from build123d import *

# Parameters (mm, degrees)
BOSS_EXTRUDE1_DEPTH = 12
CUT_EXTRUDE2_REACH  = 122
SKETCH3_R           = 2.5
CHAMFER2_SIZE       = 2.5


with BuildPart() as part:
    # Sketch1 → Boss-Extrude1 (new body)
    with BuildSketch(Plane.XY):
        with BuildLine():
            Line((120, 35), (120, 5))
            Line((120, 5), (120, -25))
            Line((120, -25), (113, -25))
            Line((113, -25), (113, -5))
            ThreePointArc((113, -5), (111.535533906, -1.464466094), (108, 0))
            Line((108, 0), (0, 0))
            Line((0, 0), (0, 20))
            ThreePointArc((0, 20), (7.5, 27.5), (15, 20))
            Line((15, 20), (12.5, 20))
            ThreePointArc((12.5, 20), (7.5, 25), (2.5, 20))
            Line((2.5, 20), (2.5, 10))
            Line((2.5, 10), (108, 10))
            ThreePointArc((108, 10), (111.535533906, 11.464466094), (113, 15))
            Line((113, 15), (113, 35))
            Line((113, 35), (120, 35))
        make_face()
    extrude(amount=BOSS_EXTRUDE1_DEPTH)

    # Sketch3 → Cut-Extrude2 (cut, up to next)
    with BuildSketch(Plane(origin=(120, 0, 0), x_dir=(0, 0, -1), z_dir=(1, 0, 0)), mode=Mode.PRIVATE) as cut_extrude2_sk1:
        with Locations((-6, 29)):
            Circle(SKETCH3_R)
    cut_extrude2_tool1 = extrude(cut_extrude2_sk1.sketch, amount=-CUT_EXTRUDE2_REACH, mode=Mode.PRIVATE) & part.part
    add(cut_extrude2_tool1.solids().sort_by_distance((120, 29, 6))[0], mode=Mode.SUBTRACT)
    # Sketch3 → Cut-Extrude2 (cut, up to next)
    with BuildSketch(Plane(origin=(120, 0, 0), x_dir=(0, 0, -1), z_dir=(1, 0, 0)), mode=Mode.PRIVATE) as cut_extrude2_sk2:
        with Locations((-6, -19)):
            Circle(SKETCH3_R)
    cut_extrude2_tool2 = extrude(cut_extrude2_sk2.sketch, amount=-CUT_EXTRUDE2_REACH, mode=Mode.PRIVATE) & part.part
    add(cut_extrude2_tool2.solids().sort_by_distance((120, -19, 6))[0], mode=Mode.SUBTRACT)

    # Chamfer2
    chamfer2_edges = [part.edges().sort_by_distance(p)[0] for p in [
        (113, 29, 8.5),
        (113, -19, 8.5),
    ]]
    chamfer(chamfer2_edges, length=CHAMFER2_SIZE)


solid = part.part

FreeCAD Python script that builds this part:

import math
import FreeCAD as App
import Part
import Sketcher

V = App.Vector


def edges_at(feature, points):
    """Names of the edges that pass closest to the given points."""
    edges = feature.Shape.Edges
    near = lambda p: min(range(len(edges)), key=lambda i: edges[i].distToShape(Part.Vertex(*p))[0])
    return sorted({f"Edge{near(p) + 1}" for p in points})

doc = App.newDocument("Part")
body = doc.addObject("PartDesign::Body", "Body")

# Sketch on XY plane
sketch1 = body.newObject("Sketcher::SketchObject", "Sketch")
sketch1.AttachmentSupport = (doc.getObject("XY_Plane"), [""])
sketch1.MapMode = "FlatFace"
sketch1.addGeometry(Part.LineSegment(V(120, -25, 0), V(120, 35, 0)), False)
sketch1.addGeometry(Part.LineSegment(V(120, 35, 0), V(113, 35, 0)), False)
sketch1.addGeometry(Part.LineSegment(V(113, 35, 0), V(113, 15, 0)), False)
sketch1.addGeometry(Part.ArcOfCircle(Part.Circle(V(108, 15, 0), V(0, 0, 1), 5), math.radians(-90), math.radians(0)), False)
sketch1.addGeometry(Part.LineSegment(V(108, 10, 0), V(2.5, 10, 0)), False)
sketch1.addGeometry(Part.LineSegment(V(2.5, 10, 0), V(2.5, 20, 0)), False)
sketch1.addGeometry(Part.ArcOfCircle(Part.Circle(V(7.5, 20, 0), V(0, 0, 1), 5), math.radians(0), math.radians(180)), False)
sketch1.addGeometry(Part.LineSegment(V(12.5, 20, 0), V(15, 20, 0)), False)
sketch1.addGeometry(Part.ArcOfCircle(Part.Circle(V(7.5, 20, 0), V(0, 0, 1), 7.5), math.radians(0), math.radians(180)), False)
sketch1.addGeometry(Part.LineSegment(V(0, 20, 0), V(0, 0, 0)), False)
sketch1.addGeometry(Part.LineSegment(V(0, 0, 0), V(108, 0, 0)), False)
sketch1.addGeometry(Part.ArcOfCircle(Part.Circle(V(108, -5, 0), V(0, 0, 1), 5), math.radians(0), math.radians(90)), False)
sketch1.addGeometry(Part.LineSegment(V(113, -5, 0), V(113, -25, 0)), False)
sketch1.addGeometry(Part.LineSegment(V(113, -25, 0), V(120, -25, 0)), False)
sketch1.addConstraint(Sketcher.Constraint("Coincident", 0, 2, 1, 1))
sketch1.addConstraint(Sketcher.Constraint("Coincident", 1, 2, 2, 1))
sketch1.addConstraint(Sketcher.Constraint("Tangent", 2, 2, 3, 2))
sketch1.addConstraint(Sketcher.Constraint("Tangent", 3, 1, 4, 1))
sketch1.addConstraint(Sketcher.Constraint("Coincident", 4, 2, 5, 1))
sketch1.addConstraint(Sketcher.Constraint("Tangent", 5, 2, 6, 2))
sketch1.addConstraint(Sketcher.Constraint("Coincident", 6, 1, 7, 1))
sketch1.addConstraint(Sketcher.Constraint("Coincident", 7, 2, 8, 1))
sketch1.addConstraint(Sketcher.Constraint("Tangent", 8, 2, 9, 1))
sketch1.addConstraint(Sketcher.Constraint("Coincident", 9, 2, 10, 1))
sketch1.addConstraint(Sketcher.Constraint("Tangent", 10, 2, 11, 2))
sketch1.addConstraint(Sketcher.Constraint("Tangent", 11, 1, 12, 1))
sketch1.addConstraint(Sketcher.Constraint("Coincident", 12, 2, 13, 1))
sketch1.addConstraint(Sketcher.Constraint("Coincident", 13, 2, 0, 1))
sketch1.addConstraint(Sketcher.Constraint("Vertical", 0))
sketch1.addConstraint(Sketcher.Constraint("Horizontal", 1))
sketch1.addConstraint(Sketcher.Constraint("Vertical", 2))
sketch1.addConstraint(Sketcher.Constraint("Horizontal", 4))
sketch1.addConstraint(Sketcher.Constraint("Vertical", 5))
sketch1.addConstraint(Sketcher.Constraint("Horizontal", 7))
sketch1.addConstraint(Sketcher.Constraint("Vertical", 9))
sketch1.addConstraint(Sketcher.Constraint("Horizontal", 10))
sketch1.addConstraint(Sketcher.Constraint("Vertical", 12))
sketch1.addConstraint(Sketcher.Constraint("Horizontal", 13))
sketch1.addConstraint(Sketcher.Constraint("Coincident", 9, 2, -1, 1))
sketch1.addConstraint(Sketcher.Constraint("Coincident", 8, 3, 6, 3))
sketch1.addConstraint(Sketcher.Constraint("Equal", 3, 6))
sketch1.addConstraint(Sketcher.Constraint("Equal", 6, 11))
sketch1.addConstraint(Sketcher.Constraint("Horizontal", 5, 2, 6, 1))
sketch1.addConstraint(Sketcher.Constraint("Vertical", 3, 3, 11, 3))
sketch1.addConstraint(Sketcher.Constraint("Equal", 2, 9))
sketch1.addConstraint(Sketcher.Constraint("Equal", 9, 12))
sketch1.addConstraint(Sketcher.Constraint("Radius", 3, 5.0))
sketch1.addConstraint(Sketcher.Constraint("Radius", 8, 7.5))
sketch1.addConstraint(Sketcher.Constraint("DistanceX", 1, 2, 1, 1, 7.0))
sketch1.addConstraint(Sketcher.Constraint("DistanceX", 10, 1, 10, 2, 108.0))
sketch1.addConstraint(Sketcher.Constraint("DistanceY", 0, 1, 0, 2, 60.0))
sketch1.addConstraint(Sketcher.Constraint("DistanceY", 2, 2, 2, 1, 20.0))
pad1 = body.newObject("PartDesign::Pad", "Pad")
pad1.Profile = sketch1
pad1.Length = 12

# Sketch on YZ plane
sketch2 = body.newObject("Sketcher::SketchObject", "Sketch001")
sketch2.AttachmentSupport = (doc.getObject("YZ_Plane"), [""])
sketch2.MapMode = "FlatFace"
sketch2.AttachmentOffset = App.Placement(V(0, 0, 120), App.Rotation())
sketch2.addGeometry(Part.Circle(V(29, 6, 0), V(0, 0, 1), 2.5), False)
sketch2.addConstraint(Sketcher.Constraint("Diameter", 0, 5.0))
sketch2.addConstraint(Sketcher.Constraint("DistanceX", -1, 1, 0, 3, 29.0))
sketch2.addConstraint(Sketcher.Constraint("DistanceY", -1, 1, 0, 3, 6.0))
pocket1 = body.newObject("PartDesign::Pocket", "Pocket")
pocket1.Profile = sketch2
pocket1.Type = "UpToFirst"

# Sketch on YZ plane
sketch3 = body.newObject("Sketcher::SketchObject", "Sketch002")
sketch3.AttachmentSupport = (doc.getObject("YZ_Plane"), [""])
sketch3.MapMode = "FlatFace"
sketch3.AttachmentOffset = App.Placement(V(0, 0, 120), App.Rotation())
sketch3.addGeometry(Part.Circle(V(-19, 6, 0), V(0, 0, 1), 2.5), False)
sketch3.addConstraint(Sketcher.Constraint("Diameter", 0, 5.0))
sketch3.addConstraint(Sketcher.Constraint("DistanceX", 0, 3, -1, 1, 19.0))
sketch3.addConstraint(Sketcher.Constraint("DistanceY", -1, 1, 0, 3, 6.0))
pocket2 = body.newObject("PartDesign::Pocket", "Pocket001")
pocket2.Profile = sketch3
pocket2.Type = "UpToFirst"
doc.recompute()

chamfer = body.newObject("PartDesign::Chamfer", "Chamfer")
chamfer.Base = (pocket2, edges_at(pocket2, [(113, 29, 8.5), (113, -19, 8.5)]))
chamfer.Size = 2.5

doc.recompute()
